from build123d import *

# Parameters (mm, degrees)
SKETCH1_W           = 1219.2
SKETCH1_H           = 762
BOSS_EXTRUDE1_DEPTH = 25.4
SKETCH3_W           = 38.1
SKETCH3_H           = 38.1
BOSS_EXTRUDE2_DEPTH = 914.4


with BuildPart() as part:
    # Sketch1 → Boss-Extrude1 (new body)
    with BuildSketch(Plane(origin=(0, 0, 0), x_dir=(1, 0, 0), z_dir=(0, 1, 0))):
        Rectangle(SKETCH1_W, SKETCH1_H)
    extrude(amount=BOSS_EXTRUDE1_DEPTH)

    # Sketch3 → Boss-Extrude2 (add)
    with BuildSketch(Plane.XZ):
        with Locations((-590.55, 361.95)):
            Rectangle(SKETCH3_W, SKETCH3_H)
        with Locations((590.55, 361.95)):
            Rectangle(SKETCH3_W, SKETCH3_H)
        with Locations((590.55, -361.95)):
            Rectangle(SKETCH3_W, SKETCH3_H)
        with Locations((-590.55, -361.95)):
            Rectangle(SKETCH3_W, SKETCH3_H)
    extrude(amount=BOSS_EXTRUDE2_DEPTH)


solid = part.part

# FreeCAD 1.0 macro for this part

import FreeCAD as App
import Part
import Sketcher
Q = App.Units.Quantity

doc = App.newDocument("Part")
params = doc.addObject("Spreadsheet::Sheet", "Params")
for row, (alias, value) in enumerate([
    ("sketch1_width", "48 in"),
    ("sketch1_height", "30 in"),
    ("pad1_length", "1 in"),
    ("sketch2_width", "1.5 in"),
    ("pad2_length", "36 in"),
], start=1):
    params.set(f"A{row}", alias)
    params.set(f"B{row}", "=" + value)
    params.setAlias(f"B{row}", alias)

body = doc.addObject("PartDesign::Body", "Body")

# Sketch on XZ plane
sketch1 = doc.addObject("Sketcher::SketchObject", "Sketch")
body.addObject(sketch1)
sketch1.AttachmentSupport = (doc.XZ_Plane, [""])
sketch1.MapMode = "FlatFace"
sketch1.addGeometry([
    Part.LineSegment(App.Vector(-610, -381, 0), App.Vector(-610, 381, 0)),
    Part.LineSegment(App.Vector(-610, 381, 0), App.Vector(610, 381, 0)),
    Part.LineSegment(App.Vector(610, 381, 0), App.Vector(610, -381, 0)),
    Part.LineSegment(App.Vector(610, -381, 0), App.Vector(-610, -381, 0)),
], False)
sketch1.addConstraint([
    Sketcher.Constraint("Coincident", 0, 2, 1, 1),
    Sketcher.Constraint("Coincident", 1, 2, 2, 1),
    Sketcher.Constraint("Coincident", 2, 2, 3, 1),
    Sketcher.Constraint("Coincident", 3, 2, 0, 1),
    Sketcher.Constraint("Vertical", 0),
    Sketcher.Constraint("Horizontal", 1),
    Sketcher.Constraint("Vertical", 2),
    Sketcher.Constraint("Horizontal", 3),
    Sketcher.Constraint("Symmetric", 0, 2, 2, 2, -1, 1),
    Sketcher.Constraint("DistanceX", 1, 1, 1, 2, Q("48 in")),
    Sketcher.Constraint("DistanceY", 0, 1, 0, 2, Q("30 in")),
])
sketch1.setExpression("Constraints[9]", "Params.sketch1_width")
sketch1.setExpression("Constraints[10]", "Params.sketch1_height")
pad1 = doc.addObject("PartDesign::Pad", "Pad")
body.addObject(pad1)
pad1.Profile = sketch1
pad1.setExpression("Length", "Params.pad1_length")
pad1.Reversed = True

# Sketch on XZ plane
sketch2 = doc.addObject("Sketcher::SketchObject", "Sketch001")
body.addObject(sketch2)
sketch2.AttachmentSupport = (doc.XZ_Plane, [""])
sketch2.MapMode = "FlatFace"
sketch2.addGeometry([
    Part.LineSegment(App.Vector(-610, 381, 0), App.Vector(-610, 343, 0)),  # 0
    Part.LineSegment(App.Vector(-610, 343, 0), App.Vector(-572, 343, 0)),  # 1
    Part.LineSegment(App.Vector(-572, 343, 0), App.Vector(-572, 381, 0)),  # 2
    Part.LineSegment(App.Vector(-572, 381, 0), App.Vector(-610, 381, 0)),  # 3
    Part.LineSegment(App.Vector(572, 381, 0), App.Vector(572, 343, 0)),  # 4
    Part.LineSegment(App.Vector(572, 343, 0), App.Vector(610, 343, 0)),  # 5
    Part.LineSegment(App.Vector(610, 343, 0), App.Vector(610, 381, 0)),  # 6
    Part.LineSegment(App.Vector(610, 381, 0), App.Vector(572, 381, 0)),  # 7
    Part.LineSegment(App.Vector(572, -343, 0), App.Vector(572, -381, 0)),  # 8
    Part.LineSegment(App.Vector(572, -381, 0), App.Vector(610, -381, 0)),  # 9
    Part.LineSegment(App.Vector(610, -381, 0), App.Vector(610, -343, 0)),  # 10
    Part.LineSegment(App.Vector(610, -343, 0), App.Vector(572, -343, 0)),  # 11
    Part.LineSegment(App.Vector(-610, -343, 0), App.Vector(-610, -381, 0)),  # 12
    Part.LineSegment(App.Vector(-610, -381, 0), App.Vector(-572, -381, 0)),  # 13
    Part.LineSegment(App.Vector(-572, -381, 0), App.Vector(-572, -343, 0)),  # 14
    Part.LineSegment(App.Vector(-572, -343, 0), App.Vector(-610, -343, 0)),  # 15
], False)
sketch2.addConstraint([
    Sketcher.Constraint("Coincident", 0, 2, 1, 1),
    Sketcher.Constraint("Coincident", 1, 2, 2, 1),
    Sketcher.Constraint("Coincident", 2, 2, 3, 1),
    Sketcher.Constraint("Coincident", 3, 2, 0, 1),
    Sketcher.Constraint("Coincident", 4, 2, 5, 1),
    Sketcher.Constraint("Coincident", 5, 2, 6, 1),
    Sketcher.Constraint("Coincident", 6, 2, 7, 1),
    Sketcher.Constraint("Coincident", 7, 2, 4, 1),
    Sketcher.Constraint("Coincident", 8, 2, 9, 1),
    Sketcher.Constraint("Coincident", 9, 2, 10, 1),
    Sketcher.Constraint("Coincident", 10, 2, 11, 1),
    Sketcher.Constraint("Coincident", 11, 2, 8, 1),
    Sketcher.Constraint("Coincident", 12, 2, 13, 1),
    Sketcher.Constraint("Coincident", 13, 2, 14, 1),
    Sketcher.Constraint("Coincident", 14, 2, 15, 1),
    Sketcher.Constraint("Coincident", 15, 2, 12, 1),
    Sketcher.Constraint("Vertical", 0),
    Sketcher.Constraint("Horizontal", 1),
    Sketcher.Constraint("Vertical", 2),
    Sketcher.Constraint("Horizontal", 3),
    Sketcher.Constraint("Vertical", 4),
    Sketcher.Constraint("Horizontal", 5),
    Sketcher.Constraint("Vertical", 6),
    Sketcher.Constraint("Horizontal", 7),
    Sketcher.Constraint("Vertical", 8),
    Sketcher.Constraint("Horizontal", 9),
    Sketcher.Constraint("Vertical", 10),
    Sketcher.Constraint("Horizontal", 11),
    Sketcher.Constraint("Vertical", 12),
    Sketcher.Constraint("Horizontal", 13),
    Sketcher.Constraint("Vertical", 14),
    Sketcher.Constraint("Horizontal", 15),
    Sketcher.Constraint("Symmetric", 2, 2, 8, 2, -1, 1),
    Sketcher.Constraint("Symmetric", 0, 2, 10, 2, -1, 1),
    Sketcher.Constraint("Symmetric", 6, 2, 12, 2, -1, 1),
    Sketcher.Constraint("Symmetric", 4, 2, 14, 2, -1, 1),
    Sketcher.Constraint("Symmetric", 1, 2, 4, 2, -2),
    Sketcher.Constraint("Symmetric", 3, 2, 6, 2, -2),
    Sketcher.Constraint("Equal", 15, 0),
    Sketcher.Constraint("DistanceX", 1, 1, 1, 2, Q("1.5 in")),
    Sketcher.Constraint("DistanceX", 0, 2, -1, 1, Q("24 in")),
    Sketcher.Constraint("DistanceY", -1, 1, 2, 2, Q("15 in")),
])
sketch2.setExpression("Constraints[39]", "Params.sketch2_width")
pad2 = doc.addObject("PartDesign::Pad", "Pad001")
body.addObject(pad2)
pad2.Profile = sketch2
pad2.setExpression("Length", "Params.pad2_length")

doc.recompute()
